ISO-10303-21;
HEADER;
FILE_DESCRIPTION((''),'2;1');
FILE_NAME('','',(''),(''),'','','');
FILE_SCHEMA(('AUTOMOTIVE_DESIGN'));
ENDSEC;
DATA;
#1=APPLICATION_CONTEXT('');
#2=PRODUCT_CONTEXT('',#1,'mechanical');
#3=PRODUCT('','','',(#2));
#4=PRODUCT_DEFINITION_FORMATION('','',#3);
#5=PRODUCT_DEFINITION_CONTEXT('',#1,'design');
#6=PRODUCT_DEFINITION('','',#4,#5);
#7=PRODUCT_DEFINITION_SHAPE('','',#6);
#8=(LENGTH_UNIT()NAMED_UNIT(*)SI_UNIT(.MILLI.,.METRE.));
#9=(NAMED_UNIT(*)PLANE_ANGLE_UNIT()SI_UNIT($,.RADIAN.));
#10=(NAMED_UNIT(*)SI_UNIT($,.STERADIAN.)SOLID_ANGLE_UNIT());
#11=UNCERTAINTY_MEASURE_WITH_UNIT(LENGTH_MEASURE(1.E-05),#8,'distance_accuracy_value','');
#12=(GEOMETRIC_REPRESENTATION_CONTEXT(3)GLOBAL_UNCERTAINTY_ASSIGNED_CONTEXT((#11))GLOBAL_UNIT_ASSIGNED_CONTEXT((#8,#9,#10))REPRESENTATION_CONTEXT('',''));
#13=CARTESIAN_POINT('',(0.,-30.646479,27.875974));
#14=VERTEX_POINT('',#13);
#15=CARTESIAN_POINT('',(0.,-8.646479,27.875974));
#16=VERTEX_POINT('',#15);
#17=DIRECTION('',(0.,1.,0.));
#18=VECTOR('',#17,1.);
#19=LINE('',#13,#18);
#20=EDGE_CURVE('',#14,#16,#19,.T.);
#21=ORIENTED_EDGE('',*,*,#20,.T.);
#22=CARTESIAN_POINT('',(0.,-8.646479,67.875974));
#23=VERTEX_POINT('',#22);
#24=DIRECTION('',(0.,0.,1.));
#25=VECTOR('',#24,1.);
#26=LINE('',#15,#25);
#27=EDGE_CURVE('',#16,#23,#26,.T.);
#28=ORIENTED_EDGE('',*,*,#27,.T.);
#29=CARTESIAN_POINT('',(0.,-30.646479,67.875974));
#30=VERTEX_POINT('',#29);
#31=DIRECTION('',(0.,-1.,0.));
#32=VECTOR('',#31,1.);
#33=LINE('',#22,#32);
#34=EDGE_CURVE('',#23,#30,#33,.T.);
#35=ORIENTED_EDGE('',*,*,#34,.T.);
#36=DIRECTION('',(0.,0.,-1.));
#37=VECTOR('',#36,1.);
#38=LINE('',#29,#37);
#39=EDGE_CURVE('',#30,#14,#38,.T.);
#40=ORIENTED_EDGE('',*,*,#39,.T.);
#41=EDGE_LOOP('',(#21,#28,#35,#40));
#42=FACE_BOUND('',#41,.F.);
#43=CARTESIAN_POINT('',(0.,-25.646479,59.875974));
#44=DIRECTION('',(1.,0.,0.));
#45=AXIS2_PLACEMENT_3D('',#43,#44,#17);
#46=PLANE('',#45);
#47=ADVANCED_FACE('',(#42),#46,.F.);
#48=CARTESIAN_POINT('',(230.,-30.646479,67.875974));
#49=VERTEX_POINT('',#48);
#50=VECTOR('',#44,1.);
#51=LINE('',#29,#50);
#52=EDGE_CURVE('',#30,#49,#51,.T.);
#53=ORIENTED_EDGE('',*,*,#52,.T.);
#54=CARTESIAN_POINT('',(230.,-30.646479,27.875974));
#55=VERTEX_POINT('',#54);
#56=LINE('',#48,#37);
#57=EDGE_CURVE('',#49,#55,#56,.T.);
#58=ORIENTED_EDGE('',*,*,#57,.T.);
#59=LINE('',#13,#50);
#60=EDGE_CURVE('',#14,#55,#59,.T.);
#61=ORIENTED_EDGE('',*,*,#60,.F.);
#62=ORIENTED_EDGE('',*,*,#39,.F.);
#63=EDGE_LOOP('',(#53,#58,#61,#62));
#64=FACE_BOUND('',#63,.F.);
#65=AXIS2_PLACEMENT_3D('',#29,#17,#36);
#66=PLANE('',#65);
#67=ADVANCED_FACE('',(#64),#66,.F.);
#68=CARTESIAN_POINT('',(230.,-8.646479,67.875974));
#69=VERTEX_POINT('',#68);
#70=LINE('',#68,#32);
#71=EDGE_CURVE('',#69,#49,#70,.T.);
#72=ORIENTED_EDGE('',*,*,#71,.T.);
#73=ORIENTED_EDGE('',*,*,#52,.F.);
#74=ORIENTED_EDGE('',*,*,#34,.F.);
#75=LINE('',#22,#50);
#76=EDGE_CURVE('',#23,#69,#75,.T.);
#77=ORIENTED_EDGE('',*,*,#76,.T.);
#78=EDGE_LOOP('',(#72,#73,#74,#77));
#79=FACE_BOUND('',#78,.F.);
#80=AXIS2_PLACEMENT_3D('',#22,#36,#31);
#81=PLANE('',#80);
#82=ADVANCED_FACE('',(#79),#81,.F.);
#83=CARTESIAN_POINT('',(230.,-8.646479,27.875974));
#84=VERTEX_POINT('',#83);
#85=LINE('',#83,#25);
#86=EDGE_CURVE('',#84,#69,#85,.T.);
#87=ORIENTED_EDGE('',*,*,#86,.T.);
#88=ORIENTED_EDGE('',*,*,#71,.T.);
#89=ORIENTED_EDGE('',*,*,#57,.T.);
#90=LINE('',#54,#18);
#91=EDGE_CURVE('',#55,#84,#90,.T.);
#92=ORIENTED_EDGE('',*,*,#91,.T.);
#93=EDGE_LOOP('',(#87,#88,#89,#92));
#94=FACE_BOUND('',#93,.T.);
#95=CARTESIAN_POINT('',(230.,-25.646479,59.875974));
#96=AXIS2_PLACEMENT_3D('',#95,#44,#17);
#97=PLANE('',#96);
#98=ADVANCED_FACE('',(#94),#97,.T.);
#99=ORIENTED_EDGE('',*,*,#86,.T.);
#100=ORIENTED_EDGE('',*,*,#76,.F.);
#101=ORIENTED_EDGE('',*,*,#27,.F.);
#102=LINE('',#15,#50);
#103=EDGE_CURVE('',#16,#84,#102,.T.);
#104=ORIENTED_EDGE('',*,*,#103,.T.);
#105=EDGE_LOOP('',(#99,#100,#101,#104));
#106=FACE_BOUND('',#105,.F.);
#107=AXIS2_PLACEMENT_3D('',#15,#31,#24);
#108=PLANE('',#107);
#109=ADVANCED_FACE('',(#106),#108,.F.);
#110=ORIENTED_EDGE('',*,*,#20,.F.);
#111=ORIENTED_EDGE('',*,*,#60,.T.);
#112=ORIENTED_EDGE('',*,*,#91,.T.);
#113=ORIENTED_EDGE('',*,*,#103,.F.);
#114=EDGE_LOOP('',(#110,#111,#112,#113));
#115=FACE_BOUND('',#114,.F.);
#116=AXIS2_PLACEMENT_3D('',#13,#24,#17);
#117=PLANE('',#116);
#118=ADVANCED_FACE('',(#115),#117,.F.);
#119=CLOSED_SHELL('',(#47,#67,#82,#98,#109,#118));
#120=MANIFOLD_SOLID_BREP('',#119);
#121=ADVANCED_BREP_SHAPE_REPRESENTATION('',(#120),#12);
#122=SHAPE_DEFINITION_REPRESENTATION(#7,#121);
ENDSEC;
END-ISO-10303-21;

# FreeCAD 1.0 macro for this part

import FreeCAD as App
import Part
import Sketcher

V = App.Vector
Q = App.Units.Quantity

doc = App.newDocument("Part")
body = doc.addObject("PartDesign::Body", "Body")

# Sketch on YZ plane
sketch1 = body.newObject("Sketcher::SketchObject", "Sketch")
sketch1.AttachmentSupport = (doc.getObject("YZ_Plane"), [""])
sketch1.MapMode = "FlatFace"
sketch1.addGeometry([
    Part.LineSegment(V(-31, 28, 0), V(-9, 28, 0)),
    Part.LineSegment(V(-9, 28, 0), V(-9, 68, 0)),
    Part.LineSegment(V(-9, 68, 0), V(-31, 68, 0)),
    Part.LineSegment(V(-31, 68, 0), V(-31, 28, 0)),
], False)
sketch1.addConstraint([
    Sketcher.Constraint("Coincident", 0, 2, 1, 1),
    Sketcher.Constraint("Coincident", 1, 2, 2, 1),
    Sketcher.Constraint("Coincident", 2, 2, 3, 1),
    Sketcher.Constraint("Coincident", 3, 2, 0, 1),
    Sketcher.Constraint("Horizontal", 0),
    Sketcher.Constraint("Vertical", 1),
    Sketcher.Constraint("Horizontal", 2),
    Sketcher.Constraint("Vertical", 3),
    Sketcher.Constraint("DistanceX", 0, 1, 0, 2, Q("22 mm")),
    Sketcher.Constraint("DistanceY", 1, 1, 1, 2, Q("40 mm")),
    Sketcher.Constraint("DistanceX", 0, 2, -1, 1, Q("8.646479 mm")),
    Sketcher.Constraint("DistanceY", -1, 1, 0, 2, Q("27.875974 mm")),
])
pad1 = body.newObject("PartDesign::Pad", "Pad")
pad1.Profile = sketch1
pad1.Length = 230

doc.recompute()
